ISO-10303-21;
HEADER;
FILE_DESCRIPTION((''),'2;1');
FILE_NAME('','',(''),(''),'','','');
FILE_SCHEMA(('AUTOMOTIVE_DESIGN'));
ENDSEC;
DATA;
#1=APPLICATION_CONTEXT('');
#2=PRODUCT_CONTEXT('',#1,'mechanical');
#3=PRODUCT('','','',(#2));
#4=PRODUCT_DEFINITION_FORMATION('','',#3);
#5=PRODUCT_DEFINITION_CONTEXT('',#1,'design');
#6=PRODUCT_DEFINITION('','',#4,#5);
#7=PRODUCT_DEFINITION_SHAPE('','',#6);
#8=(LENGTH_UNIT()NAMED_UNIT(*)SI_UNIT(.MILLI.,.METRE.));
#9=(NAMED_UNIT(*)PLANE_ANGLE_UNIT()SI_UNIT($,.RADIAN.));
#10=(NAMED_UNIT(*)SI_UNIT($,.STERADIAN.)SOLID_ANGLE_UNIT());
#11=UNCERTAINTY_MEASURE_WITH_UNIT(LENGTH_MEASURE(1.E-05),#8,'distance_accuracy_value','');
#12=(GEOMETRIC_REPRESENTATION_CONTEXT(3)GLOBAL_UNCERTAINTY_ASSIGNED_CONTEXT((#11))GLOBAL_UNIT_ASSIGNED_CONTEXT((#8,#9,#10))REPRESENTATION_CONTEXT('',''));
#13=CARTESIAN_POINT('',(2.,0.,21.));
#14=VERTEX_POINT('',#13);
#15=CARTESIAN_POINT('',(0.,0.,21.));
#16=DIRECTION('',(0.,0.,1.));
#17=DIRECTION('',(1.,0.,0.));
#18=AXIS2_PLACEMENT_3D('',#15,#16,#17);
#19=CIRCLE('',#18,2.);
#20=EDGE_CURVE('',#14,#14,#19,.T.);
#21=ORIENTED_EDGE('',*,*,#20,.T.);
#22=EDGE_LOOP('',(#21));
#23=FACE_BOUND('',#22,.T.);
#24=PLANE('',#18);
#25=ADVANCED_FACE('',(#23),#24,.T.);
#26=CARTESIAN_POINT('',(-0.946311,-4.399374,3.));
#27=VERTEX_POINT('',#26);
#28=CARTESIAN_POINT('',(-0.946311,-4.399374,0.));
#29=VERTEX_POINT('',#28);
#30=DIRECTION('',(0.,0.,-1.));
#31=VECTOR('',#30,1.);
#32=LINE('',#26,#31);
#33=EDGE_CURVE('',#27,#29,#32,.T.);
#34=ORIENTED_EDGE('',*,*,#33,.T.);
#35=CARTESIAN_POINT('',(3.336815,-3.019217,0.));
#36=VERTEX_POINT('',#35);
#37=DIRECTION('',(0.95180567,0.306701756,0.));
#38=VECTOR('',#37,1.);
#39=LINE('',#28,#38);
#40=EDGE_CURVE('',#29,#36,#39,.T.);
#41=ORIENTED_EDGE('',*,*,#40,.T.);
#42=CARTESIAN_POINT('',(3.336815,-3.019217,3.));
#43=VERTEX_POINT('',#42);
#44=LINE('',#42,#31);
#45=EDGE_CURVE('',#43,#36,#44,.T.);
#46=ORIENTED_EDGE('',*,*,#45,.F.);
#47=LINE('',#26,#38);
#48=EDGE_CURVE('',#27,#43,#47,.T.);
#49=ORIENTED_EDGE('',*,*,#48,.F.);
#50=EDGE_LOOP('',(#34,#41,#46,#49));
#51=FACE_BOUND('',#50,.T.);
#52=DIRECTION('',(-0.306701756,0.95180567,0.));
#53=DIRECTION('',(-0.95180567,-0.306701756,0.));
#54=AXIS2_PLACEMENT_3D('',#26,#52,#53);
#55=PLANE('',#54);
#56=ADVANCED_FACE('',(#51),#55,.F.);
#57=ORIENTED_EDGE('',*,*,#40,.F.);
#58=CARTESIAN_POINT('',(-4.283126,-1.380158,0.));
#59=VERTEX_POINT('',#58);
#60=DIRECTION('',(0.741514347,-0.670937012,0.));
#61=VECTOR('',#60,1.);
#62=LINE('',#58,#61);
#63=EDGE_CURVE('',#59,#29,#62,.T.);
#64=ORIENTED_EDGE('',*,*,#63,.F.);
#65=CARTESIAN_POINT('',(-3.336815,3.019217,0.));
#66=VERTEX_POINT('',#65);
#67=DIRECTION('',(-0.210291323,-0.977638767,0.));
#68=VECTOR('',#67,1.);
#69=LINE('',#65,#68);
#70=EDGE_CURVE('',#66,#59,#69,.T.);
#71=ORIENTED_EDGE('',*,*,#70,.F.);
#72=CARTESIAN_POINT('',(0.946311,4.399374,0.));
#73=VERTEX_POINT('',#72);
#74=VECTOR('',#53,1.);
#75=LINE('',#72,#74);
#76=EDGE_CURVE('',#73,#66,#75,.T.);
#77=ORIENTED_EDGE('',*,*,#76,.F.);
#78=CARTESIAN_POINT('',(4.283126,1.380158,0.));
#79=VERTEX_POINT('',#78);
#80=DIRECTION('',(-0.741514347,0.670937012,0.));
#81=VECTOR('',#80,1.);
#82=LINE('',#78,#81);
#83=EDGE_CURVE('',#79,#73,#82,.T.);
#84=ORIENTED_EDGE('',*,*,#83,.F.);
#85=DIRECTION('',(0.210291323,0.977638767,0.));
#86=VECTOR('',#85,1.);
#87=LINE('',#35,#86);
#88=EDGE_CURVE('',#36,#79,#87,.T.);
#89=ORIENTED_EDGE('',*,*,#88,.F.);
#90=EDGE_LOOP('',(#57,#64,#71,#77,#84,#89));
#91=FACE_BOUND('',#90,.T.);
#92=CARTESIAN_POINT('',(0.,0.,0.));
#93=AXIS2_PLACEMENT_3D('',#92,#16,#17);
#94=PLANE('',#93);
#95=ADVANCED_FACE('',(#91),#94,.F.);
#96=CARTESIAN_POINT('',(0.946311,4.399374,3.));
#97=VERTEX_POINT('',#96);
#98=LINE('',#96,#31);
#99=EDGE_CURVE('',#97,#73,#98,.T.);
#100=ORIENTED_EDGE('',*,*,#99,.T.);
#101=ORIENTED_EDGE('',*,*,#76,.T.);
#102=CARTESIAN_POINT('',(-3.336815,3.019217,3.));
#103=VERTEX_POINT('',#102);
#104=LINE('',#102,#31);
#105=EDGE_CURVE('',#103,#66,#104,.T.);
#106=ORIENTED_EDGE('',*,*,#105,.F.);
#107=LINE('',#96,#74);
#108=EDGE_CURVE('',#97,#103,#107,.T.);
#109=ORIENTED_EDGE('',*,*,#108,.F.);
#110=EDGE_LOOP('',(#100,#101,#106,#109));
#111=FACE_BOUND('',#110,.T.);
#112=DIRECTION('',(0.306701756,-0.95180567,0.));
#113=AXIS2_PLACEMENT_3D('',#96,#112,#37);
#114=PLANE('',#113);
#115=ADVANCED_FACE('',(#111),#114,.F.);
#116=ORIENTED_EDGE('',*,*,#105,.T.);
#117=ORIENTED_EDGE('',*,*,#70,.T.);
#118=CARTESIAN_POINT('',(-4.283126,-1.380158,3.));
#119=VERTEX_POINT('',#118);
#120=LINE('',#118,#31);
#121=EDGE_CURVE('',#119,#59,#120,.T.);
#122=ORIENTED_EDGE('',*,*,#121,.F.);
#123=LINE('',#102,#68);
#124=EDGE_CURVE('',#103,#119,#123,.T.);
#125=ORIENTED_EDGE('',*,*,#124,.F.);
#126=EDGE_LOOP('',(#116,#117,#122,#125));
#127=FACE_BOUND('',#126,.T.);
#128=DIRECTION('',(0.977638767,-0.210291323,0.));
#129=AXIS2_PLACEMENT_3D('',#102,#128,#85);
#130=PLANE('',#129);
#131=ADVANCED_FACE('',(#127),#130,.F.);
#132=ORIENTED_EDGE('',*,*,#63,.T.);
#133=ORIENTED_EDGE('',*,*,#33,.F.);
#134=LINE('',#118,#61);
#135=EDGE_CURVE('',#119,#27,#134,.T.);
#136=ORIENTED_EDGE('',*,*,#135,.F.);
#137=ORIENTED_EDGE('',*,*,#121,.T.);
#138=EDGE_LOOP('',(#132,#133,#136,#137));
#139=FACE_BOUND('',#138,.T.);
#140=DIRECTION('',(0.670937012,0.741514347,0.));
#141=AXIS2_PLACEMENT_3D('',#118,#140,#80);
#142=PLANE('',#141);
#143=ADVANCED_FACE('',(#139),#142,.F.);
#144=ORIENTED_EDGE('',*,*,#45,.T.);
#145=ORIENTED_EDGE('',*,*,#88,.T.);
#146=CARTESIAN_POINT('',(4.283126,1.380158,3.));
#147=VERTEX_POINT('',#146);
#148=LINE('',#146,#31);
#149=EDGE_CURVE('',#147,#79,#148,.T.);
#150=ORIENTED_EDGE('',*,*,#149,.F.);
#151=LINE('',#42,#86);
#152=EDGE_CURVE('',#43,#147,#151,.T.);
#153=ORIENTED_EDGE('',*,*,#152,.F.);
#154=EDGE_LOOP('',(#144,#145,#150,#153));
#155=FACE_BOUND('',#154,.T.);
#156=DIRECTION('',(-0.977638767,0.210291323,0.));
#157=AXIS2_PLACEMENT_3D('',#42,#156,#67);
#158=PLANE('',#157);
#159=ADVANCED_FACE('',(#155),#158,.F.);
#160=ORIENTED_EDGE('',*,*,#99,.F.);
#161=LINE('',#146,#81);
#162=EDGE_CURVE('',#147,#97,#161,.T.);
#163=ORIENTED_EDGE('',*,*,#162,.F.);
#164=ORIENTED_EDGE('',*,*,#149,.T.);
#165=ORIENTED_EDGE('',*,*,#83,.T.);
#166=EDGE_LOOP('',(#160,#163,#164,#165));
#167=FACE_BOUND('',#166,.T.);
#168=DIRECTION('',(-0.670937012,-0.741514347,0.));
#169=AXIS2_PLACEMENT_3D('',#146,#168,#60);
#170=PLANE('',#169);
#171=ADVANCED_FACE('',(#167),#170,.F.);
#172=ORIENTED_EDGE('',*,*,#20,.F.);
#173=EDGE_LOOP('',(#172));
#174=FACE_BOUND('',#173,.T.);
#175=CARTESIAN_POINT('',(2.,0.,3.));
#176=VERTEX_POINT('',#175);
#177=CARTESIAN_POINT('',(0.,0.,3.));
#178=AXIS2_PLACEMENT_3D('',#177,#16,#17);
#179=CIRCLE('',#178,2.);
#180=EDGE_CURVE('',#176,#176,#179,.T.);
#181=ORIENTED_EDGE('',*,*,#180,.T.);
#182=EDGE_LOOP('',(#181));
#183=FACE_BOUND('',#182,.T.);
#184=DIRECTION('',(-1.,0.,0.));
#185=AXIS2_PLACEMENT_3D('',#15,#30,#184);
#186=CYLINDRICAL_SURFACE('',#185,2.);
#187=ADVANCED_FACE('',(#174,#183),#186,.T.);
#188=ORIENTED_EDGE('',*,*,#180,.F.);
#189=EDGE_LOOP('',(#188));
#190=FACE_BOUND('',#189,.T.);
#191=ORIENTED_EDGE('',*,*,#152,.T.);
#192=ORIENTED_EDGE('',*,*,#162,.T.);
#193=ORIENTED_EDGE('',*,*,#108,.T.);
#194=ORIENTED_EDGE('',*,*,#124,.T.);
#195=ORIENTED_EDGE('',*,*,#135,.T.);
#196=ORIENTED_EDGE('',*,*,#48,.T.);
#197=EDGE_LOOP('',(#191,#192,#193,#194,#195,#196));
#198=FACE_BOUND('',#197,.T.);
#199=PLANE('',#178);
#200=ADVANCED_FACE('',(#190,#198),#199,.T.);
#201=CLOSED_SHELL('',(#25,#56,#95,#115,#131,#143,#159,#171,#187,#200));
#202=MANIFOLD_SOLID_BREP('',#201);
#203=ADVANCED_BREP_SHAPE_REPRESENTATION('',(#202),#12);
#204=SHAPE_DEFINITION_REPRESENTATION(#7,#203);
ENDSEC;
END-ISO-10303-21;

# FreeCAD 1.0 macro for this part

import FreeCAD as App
import Part
import Sketcher
Q = App.Units.Quantity

doc = App.newDocument("Part")
body = doc.addObject("PartDesign::Body", "Body")

# Sketch on XY plane
sketch1 = doc.addObject("Sketcher::SketchObject", "Sketch")
body.addObject(sketch1)
sketch1.AttachmentSupport = (doc.XY_Plane, [""])
sketch1.MapMode = "FlatFace"
sketch1.addGeometry([
    Part.LineSegment(App.Vector(3.3, -3, 0), App.Vector(4.3, 1.4, 0)),  # 0
    Part.LineSegment(App.Vector(4.3, 1.4, 0), App.Vector(0.9, 4.4, 0)),  # 1
    Part.LineSegment(App.Vector(0.9, 4.4, 0), App.Vector(-3.3, 3, 0)),  # 2
    Part.LineSegment(App.Vector(-3.3, 3, 0), App.Vector(-4.3, -1.4, 0)),  # 3
    Part.LineSegment(App.Vector(-4.3, -1.4, 0), App.Vector(-0.9, -4.4, 0)),  # 4
    Part.LineSegment(App.Vector(-0.9, -4.4, 0), App.Vector(3.3, -3, 0)),  # 5
], False)
sketch1.addConstraint([
    Sketcher.Constraint("Coincident", 0, 2, 1, 1),
    Sketcher.Constraint("Coincident", 1, 2, 2, 1),
    Sketcher.Constraint("Coincident", 2, 2, 3, 1),
    Sketcher.Constraint("Coincident", 3, 2, 4, 1),
    Sketcher.Constraint("Coincident", 4, 2, 5, 1),
    Sketcher.Constraint("Coincident", 5, 2, 0, 1),
    Sketcher.Constraint("Symmetric", 0, 2, 3, 2, -1, 1),
    Sketcher.Constraint("Symmetric", 1, 2, 4, 2, -1, 1),
    Sketcher.Constraint("Symmetric", 2, 2, 5, 2, -1, 1),
    Sketcher.Constraint("Equal", 0, 1),
    Sketcher.Constraint("Equal", 1, 2),
    Sketcher.Constraint("Distance", 0, Q("4.5 mm")),
    Sketcher.Constraint("DistanceX", -1, 1, 1, 2, Q("0.946311 mm")),
    Sketcher.Constraint("DistanceX", 2, 2, 0, 2, Q("7.61994 mm")),
    Sketcher.Constraint("DistanceY", 0, 2, 2, 2, Q("1.639059 mm")),
])
pad1 = doc.addObject("PartDesign::Pad", "Pad")
body.addObject(pad1)
pad1.Profile = sketch1
pad1.Length = 3

# Sketch on XY plane
sketch2 = doc.addObject("Sketcher::SketchObject", "Sketch001")
body.addObject(sketch2)
sketch2.AttachmentSupport = (doc.XY_Plane, [""])
sketch2.MapMode = "FlatFace"
sketch2.AttachmentOffset = App.Placement(App.Vector(0, 0, 3), App.Rotation())
sketch2.addGeometry(Part.Circle(App.Vector(0, 0, 0), App.Vector(0, 0, 1), 2), False)
sketch2.addConstraint([
    Sketcher.Constraint("Coincident", 0, 3, -1, 1),
    Sketcher.Constraint("Diameter", 0, Q("4 mm")),
])
pad2 = doc.addObject("PartDesign::Pad", "Pad001")
body.addObject(pad2)
pad2.Profile = sketch2
pad2.Length = 18

doc.recompute()
